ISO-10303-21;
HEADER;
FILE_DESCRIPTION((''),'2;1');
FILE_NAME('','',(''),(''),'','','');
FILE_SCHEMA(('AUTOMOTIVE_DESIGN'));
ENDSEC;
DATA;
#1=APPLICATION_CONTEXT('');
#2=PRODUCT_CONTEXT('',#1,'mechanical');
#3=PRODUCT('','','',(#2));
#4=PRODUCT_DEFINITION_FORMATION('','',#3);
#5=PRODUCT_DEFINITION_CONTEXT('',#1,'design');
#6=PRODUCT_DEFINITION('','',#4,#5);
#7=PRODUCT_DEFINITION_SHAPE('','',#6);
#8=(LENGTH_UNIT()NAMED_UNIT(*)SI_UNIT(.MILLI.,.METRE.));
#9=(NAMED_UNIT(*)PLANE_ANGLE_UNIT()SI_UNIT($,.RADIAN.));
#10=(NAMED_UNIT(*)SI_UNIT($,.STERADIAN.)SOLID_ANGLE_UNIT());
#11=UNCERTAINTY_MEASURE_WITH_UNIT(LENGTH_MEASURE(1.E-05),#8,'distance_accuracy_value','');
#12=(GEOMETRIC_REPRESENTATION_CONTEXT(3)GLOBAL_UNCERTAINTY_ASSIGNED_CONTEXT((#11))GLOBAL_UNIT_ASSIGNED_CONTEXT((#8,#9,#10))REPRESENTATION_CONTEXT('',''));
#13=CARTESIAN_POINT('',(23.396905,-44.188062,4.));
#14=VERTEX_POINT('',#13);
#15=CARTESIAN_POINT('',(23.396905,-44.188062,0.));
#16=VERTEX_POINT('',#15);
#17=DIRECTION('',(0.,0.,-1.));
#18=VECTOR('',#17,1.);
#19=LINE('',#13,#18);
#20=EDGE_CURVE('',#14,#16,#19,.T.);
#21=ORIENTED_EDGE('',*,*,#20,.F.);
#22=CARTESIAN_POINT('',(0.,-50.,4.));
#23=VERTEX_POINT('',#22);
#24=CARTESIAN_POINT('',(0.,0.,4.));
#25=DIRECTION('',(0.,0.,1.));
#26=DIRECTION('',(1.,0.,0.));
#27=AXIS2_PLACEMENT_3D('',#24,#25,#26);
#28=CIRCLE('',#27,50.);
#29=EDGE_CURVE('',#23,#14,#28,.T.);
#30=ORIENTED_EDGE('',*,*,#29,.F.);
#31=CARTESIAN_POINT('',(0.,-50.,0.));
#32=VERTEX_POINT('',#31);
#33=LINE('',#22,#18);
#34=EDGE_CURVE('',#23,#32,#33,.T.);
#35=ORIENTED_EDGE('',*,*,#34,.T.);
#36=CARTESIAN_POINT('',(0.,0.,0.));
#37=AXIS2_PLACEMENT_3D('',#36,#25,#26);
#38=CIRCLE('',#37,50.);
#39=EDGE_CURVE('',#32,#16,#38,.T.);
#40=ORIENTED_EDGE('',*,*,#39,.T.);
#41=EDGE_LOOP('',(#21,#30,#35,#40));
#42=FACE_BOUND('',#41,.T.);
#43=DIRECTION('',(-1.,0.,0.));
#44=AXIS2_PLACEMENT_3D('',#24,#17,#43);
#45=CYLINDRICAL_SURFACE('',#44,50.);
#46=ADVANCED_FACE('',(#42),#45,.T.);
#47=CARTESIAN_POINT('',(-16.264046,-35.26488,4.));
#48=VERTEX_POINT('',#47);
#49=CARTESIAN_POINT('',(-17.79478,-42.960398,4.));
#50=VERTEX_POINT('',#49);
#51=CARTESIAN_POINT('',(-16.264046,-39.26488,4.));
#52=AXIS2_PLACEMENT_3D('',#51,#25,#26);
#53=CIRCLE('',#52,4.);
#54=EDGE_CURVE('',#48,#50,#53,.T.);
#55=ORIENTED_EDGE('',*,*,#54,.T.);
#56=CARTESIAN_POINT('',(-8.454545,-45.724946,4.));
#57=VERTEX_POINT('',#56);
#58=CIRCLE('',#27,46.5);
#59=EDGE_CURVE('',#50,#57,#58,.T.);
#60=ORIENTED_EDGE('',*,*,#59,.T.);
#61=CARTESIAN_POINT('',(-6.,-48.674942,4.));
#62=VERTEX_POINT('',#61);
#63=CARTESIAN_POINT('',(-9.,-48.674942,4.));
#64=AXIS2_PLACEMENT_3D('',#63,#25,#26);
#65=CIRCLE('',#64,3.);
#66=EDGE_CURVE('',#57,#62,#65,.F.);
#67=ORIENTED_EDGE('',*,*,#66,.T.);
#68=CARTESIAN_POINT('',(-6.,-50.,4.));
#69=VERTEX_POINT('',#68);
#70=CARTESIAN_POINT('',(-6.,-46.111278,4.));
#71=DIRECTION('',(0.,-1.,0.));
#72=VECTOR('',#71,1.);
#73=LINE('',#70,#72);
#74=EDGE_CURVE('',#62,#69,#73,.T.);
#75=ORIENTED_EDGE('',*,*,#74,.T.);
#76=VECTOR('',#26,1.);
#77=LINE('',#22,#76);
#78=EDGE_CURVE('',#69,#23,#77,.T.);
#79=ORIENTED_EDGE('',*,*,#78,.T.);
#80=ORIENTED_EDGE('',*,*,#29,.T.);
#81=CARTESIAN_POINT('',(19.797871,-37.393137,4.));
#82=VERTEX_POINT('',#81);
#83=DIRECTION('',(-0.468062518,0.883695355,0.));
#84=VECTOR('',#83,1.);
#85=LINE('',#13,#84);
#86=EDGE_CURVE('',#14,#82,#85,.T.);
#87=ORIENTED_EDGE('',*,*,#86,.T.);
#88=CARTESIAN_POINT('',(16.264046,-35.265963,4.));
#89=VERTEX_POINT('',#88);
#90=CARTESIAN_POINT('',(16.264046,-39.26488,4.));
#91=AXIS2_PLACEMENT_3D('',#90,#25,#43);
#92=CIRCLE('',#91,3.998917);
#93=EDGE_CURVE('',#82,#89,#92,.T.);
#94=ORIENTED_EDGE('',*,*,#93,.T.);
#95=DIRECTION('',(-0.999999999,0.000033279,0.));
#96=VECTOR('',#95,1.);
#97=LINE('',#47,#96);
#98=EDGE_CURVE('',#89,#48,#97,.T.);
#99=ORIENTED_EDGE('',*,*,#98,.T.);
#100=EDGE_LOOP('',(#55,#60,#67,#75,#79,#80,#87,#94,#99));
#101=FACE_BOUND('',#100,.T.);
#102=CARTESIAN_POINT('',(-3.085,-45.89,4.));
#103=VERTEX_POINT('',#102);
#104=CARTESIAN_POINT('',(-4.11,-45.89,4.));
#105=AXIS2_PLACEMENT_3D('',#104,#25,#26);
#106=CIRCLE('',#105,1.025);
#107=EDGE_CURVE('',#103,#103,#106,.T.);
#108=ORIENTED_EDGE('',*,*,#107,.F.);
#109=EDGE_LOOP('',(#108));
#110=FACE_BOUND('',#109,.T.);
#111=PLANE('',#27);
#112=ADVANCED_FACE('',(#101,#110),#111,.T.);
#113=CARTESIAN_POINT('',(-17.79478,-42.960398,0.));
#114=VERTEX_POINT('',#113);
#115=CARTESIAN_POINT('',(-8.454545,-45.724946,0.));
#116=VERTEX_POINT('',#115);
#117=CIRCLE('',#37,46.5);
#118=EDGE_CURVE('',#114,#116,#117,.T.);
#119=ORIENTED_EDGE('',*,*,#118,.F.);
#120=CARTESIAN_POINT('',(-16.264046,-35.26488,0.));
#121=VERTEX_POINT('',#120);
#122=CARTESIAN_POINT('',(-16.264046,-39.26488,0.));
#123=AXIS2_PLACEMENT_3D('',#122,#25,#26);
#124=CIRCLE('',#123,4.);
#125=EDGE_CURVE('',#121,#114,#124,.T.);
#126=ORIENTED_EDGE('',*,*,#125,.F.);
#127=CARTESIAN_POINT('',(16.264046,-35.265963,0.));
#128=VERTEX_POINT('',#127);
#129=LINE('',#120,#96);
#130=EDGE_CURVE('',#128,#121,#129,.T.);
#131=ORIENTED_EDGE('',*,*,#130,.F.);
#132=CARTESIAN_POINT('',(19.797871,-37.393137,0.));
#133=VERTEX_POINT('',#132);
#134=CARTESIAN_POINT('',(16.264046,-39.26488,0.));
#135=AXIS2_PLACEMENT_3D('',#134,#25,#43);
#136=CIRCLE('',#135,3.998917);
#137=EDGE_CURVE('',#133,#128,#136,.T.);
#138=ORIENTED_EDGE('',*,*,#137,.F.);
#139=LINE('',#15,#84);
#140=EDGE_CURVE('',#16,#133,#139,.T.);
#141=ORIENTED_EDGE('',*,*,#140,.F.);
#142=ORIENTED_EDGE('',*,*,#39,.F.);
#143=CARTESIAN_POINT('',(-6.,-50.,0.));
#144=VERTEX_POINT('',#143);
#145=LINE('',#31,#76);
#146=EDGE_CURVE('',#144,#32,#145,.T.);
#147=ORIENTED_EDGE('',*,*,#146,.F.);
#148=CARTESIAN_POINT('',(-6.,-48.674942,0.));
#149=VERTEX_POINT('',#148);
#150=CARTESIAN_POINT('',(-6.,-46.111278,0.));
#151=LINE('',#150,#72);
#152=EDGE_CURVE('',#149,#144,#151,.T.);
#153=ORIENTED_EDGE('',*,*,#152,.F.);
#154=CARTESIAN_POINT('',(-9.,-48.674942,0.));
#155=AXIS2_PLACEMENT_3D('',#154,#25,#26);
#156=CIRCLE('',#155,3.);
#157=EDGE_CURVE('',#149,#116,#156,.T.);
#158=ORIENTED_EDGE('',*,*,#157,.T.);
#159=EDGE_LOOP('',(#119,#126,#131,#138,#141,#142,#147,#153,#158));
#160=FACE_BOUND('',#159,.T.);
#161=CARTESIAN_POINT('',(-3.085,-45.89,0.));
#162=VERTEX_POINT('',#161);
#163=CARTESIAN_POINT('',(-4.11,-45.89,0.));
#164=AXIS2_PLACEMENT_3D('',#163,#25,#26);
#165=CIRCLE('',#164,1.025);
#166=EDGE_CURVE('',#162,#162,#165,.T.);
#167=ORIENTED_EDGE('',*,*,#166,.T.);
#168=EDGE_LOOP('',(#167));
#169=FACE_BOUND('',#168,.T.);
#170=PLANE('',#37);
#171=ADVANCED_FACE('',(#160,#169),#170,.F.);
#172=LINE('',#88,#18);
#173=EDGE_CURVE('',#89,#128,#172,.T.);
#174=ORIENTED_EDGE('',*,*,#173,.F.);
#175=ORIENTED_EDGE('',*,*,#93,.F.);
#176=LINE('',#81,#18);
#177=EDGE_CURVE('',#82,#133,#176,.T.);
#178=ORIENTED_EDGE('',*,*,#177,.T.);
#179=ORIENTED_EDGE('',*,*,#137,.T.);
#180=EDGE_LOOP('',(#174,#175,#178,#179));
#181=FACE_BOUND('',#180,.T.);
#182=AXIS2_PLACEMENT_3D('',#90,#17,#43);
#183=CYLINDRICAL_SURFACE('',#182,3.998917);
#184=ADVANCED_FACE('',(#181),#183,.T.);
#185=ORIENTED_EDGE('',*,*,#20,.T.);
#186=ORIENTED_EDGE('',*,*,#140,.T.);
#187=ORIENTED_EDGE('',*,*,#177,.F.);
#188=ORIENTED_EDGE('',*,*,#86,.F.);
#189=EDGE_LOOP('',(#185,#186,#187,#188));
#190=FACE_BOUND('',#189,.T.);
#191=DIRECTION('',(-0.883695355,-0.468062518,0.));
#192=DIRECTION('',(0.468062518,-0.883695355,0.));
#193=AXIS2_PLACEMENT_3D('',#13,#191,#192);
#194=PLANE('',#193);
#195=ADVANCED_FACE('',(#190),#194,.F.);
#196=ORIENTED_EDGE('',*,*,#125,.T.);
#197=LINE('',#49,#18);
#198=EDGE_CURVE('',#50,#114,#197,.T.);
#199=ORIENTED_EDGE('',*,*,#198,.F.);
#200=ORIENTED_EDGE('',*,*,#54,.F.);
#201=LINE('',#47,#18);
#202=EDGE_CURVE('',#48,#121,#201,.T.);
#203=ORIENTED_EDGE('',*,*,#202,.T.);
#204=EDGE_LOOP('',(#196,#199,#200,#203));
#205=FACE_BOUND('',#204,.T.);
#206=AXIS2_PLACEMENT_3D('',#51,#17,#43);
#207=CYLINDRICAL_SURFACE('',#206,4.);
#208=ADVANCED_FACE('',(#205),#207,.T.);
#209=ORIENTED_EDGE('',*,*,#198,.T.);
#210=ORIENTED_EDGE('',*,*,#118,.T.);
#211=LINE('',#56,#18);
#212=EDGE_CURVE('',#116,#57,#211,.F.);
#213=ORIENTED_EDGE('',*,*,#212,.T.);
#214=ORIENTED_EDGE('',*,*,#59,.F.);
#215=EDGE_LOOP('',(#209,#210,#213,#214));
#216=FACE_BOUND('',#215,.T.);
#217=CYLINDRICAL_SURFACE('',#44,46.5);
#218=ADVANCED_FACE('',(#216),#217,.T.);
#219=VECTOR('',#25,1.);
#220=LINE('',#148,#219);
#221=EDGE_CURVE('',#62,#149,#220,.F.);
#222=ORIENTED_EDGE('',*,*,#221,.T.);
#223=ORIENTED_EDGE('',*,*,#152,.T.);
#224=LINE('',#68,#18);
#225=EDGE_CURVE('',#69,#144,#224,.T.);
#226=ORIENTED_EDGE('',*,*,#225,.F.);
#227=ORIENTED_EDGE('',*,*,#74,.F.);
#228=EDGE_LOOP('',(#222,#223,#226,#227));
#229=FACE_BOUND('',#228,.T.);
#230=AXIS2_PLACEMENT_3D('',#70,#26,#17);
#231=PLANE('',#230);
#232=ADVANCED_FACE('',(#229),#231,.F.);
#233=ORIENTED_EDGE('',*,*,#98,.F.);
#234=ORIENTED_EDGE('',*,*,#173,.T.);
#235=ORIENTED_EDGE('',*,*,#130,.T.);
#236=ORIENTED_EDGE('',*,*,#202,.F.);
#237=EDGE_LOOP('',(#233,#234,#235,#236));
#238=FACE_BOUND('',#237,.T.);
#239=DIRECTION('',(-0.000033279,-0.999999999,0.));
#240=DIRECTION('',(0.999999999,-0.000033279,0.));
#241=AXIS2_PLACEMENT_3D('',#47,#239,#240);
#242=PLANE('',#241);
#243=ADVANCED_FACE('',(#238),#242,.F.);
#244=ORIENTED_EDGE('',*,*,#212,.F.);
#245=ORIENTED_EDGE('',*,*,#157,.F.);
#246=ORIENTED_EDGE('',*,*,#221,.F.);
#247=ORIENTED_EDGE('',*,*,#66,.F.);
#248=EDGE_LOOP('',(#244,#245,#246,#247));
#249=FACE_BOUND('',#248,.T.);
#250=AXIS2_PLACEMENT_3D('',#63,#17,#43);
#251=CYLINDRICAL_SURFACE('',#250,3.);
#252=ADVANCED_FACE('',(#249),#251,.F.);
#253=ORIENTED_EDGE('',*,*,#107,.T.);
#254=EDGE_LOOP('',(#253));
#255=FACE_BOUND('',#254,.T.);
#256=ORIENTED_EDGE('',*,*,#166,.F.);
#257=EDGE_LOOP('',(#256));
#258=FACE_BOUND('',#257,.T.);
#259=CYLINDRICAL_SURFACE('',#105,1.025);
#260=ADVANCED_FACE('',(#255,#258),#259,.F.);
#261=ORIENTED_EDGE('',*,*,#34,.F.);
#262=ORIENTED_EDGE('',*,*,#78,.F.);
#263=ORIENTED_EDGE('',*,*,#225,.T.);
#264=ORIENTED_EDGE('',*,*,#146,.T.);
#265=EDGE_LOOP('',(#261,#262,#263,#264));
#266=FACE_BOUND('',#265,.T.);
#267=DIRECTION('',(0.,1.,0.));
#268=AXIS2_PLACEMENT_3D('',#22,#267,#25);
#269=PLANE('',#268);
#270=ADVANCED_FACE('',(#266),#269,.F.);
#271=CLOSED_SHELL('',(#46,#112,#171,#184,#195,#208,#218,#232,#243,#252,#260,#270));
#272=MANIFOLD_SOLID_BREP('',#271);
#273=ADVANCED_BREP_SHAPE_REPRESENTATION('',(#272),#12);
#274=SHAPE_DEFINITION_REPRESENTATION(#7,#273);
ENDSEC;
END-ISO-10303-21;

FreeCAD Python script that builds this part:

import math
import FreeCAD as App
import Part
import Sketcher

V = App.Vector
Q = App.Units.Quantity


def edges_at(feature, points):
    """Names of the edges that pass closest to the given points."""
    edges = feature.Shape.Edges
    near = lambda p: min(range(len(edges)), key=lambda i: edges[i].distToShape(Part.Vertex(*p))[0])
    return sorted({f"Edge{near(p) + 1}" for p in points})

doc = App.newDocument("Part")
body = doc.addObject("PartDesign::Body", "Body")

sketch1 = body.newObject("Sketcher::SketchObject", "Sketch")
sketch1.AttachmentSupport = (doc.getObject("XY_Plane"), [""])
sketch1.MapMode = "FlatFace"
sketch1.addGeometry([
    Part.LineSegment(V(-6, -50, 0), V(0, -50, 0)),
    Part.ArcOfCircle(Part.Circle(V(0, 0, 0), V(0, 0, 1), 50), math.radians(-90), math.radians(-62)),
    Part.LineSegment(V(23.4, -44.2, 0), V(19.8, -37.4, 0)),
    Part.ArcOfCircle(Part.Circle(V(16.3, -39.3, 0), V(0, 0, 1), 4), math.radians(28), math.radians(90)),
    Part.LineSegment(V(16.3, -35.3, 0), V(-16.3, -35.3, 0)),
    Part.ArcOfCircle(Part.Circle(V(-16.3, -39.3, 0), V(0, 0, 1), 4), math.radians(90), math.radians(247)),
    Part.ArcOfCircle(Part.Circle(V(0, 0, 0), V(0, 0, 1), 46.5), math.radians(-112.5), math.radians(-97.41)),
    Part.LineSegment(V(-6, -46.1, 0), V(-6, -50, 0)),
], False)
sketch1.addConstraint([
    Sketcher.Constraint("Tangent", 0, 2, 1, 1),
    Sketcher.Constraint("Coincident", 1, 2, 2, 1),
    Sketcher.Constraint("Tangent", 2, 2, 3, 1),
    Sketcher.Constraint("Coincident", 3, 2, 4, 1),
    Sketcher.Constraint("Coincident", 4, 2, 5, 1),
    Sketcher.Constraint("Tangent", 5, 2, 6, 1),
    Sketcher.Constraint("Coincident", 6, 2, 7, 1),
    Sketcher.Constraint("Coincident", 7, 2, 0, 1),
    Sketcher.Constraint("Horizontal", 0),
    Sketcher.Constraint("Vertical", 7),
    Sketcher.Constraint("Coincident", 1, 3, -1, 1),
    Sketcher.Constraint("Coincident", 6, 3, -1, 1),
    Sketcher.Constraint("Symmetric", 3, 3, 5, 3, -2),
    Sketcher.Constraint("Vertical", 5, 3, 4, 2),
    Sketcher.Constraint("Radius", 1, Q("50 mm")),
    Sketcher.Constraint("Radius", 5, Q("4 mm")),
    Sketcher.Constraint("Radius", 6, Q("46.5 mm")),
    Sketcher.Constraint("DistanceX", 0, 1, 0, 2, Q("6 mm")),
    Sketcher.Constraint("Radius", 3, Q("3.998917 mm")),
    Sketcher.Constraint("DistanceY", 5, 2, -1, 1, Q("42.960398 mm")),
    Sketcher.Constraint("DistanceY", 1, 2, 3, 2, Q("8.9221 mm")),
    Sketcher.Constraint("Distance", 4, Q("32.528092 mm")),
])
pad1 = body.newObject("PartDesign::Pad", "Pad")
pad1.Profile = sketch1
pad1.Length = 4

sketch2 = body.newObject("Sketcher::SketchObject", "Sketch001")
sketch2.AttachmentSupport = (doc.getObject("XY_Plane"), [""])
sketch2.MapMode = "FlatFace"
sketch2.AttachmentOffset = App.Placement(V(0, 0, 4), App.Rotation())
sketch2.addGeometry(Part.Circle(V(-4.1, -45.9, 0), V(0, 0, 1), 1), False)
sketch2.addConstraint([
    Sketcher.Constraint("Diameter", 0, Q("2.05 mm")),
    Sketcher.Constraint("DistanceX", 0, 3, -1, 1, Q("4.11 mm")),
    Sketcher.Constraint("DistanceY", 0, 3, -1, 1, Q("45.89 mm")),
])
doc.recompute()
hole = body.newObject("PartDesign::Hole", "Hole")
hole.Profile = sketch2
hole.ThreadType = "None"
hole.Diameter = 2.05
hole.DepthType = "ThroughAll"
doc.recompute()

fillet = body.newObject("PartDesign::Fillet", "Fillet")
fillet.Base = (hole, edges_at(hole, [(-6, -46.111, 2)]))
fillet.Radius = 3

doc.recompute()
